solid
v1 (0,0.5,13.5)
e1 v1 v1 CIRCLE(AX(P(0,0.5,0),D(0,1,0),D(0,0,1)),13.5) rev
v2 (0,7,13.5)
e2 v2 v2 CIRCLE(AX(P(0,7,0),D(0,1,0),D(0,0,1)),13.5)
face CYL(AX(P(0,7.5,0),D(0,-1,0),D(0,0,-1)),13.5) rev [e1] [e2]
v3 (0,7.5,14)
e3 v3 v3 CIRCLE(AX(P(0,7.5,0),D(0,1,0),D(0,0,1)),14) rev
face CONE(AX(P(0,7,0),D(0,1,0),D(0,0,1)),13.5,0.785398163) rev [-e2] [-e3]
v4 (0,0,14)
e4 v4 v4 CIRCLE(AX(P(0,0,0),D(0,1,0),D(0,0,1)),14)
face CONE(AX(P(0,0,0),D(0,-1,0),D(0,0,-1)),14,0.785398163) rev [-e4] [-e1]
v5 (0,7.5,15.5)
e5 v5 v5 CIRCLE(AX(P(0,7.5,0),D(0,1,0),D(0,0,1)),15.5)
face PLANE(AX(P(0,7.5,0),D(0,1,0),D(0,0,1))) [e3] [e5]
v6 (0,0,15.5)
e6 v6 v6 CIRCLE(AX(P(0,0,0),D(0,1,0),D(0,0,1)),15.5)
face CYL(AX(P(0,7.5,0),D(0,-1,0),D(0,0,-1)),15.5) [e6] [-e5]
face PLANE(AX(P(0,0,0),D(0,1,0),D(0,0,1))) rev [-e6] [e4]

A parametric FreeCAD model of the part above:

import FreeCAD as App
import Part
import Sketcher

V = App.Vector
Q = App.Units.Quantity


def edges_at(feature, points):
    """Names of the edges that pass closest to the given points."""
    edges = feature.Shape.Edges
    near = lambda p: min(range(len(edges)), key=lambda i: edges[i].distToShape(Part.Vertex(*p))[0])
    return sorted({f"Edge{near(p) + 1}" for p in points})

doc = App.newDocument("Part")
params = doc.addObject("Spreadsheet::Sheet", "Params")
for row, (alias, value) in enumerate([
    ("sketch1_diameter", "31 mm"),
    ("sketch1_diameter2", "27 mm"),
    ("pad1_length", "7.5 mm"),
    ("chamfer_size", "0.5 mm"),
], start=1):
    params.set(f"A{row}", alias)
    params.set(f"B{row}", "=" + value)
    params.setAlias(f"B{row}", alias)

body = doc.addObject("PartDesign::Body", "Body")

# Sketch on XZ plane
sketch1 = body.newObject("Sketcher::SketchObject", "Sketch")
sketch1.AttachmentSupport = (doc.getObject("XZ_Plane"), [""])
sketch1.MapMode = "FlatFace"
sketch1.addGeometry(Part.Circle(V(0, 0, 0), V(0, 0, 1), 16), False)
sketch1.addGeometry(Part.Circle(V(0, 0, 0), V(0, 0, 1), 14), False)
sketch1.addConstraint(Sketcher.Constraint("Coincident", 0, 3, -1, 1))
sketch1.addConstraint(Sketcher.Constraint("Coincident", 1, 3, -1, 1))
sketch1.addConstraint(Sketcher.Constraint("Diameter", 0, Q("31 mm")))
sketch1.addConstraint(Sketcher.Constraint("Diameter", 1, Q("27 mm")))
sketch1.setExpression("Constraints[2]", "Params.sketch1_diameter")
sketch1.setExpression("Constraints[3]", "Params.sketch1_diameter2")
pad1 = body.newObject("PartDesign::Pad", "Pad")
pad1.Profile = sketch1
pad1.setExpression("Length", "Params.pad1_length")
pad1.Reversed = True
doc.recompute()

chamfer = body.newObject("PartDesign::Chamfer", "Chamfer")
chamfer.Base = (pad1, edges_at(pad1, [(0, 0, -13.5), (0, 7.5, -13.5)]))
chamfer.setExpression("Size", "Params.chamfer_size")

doc.recompute()
